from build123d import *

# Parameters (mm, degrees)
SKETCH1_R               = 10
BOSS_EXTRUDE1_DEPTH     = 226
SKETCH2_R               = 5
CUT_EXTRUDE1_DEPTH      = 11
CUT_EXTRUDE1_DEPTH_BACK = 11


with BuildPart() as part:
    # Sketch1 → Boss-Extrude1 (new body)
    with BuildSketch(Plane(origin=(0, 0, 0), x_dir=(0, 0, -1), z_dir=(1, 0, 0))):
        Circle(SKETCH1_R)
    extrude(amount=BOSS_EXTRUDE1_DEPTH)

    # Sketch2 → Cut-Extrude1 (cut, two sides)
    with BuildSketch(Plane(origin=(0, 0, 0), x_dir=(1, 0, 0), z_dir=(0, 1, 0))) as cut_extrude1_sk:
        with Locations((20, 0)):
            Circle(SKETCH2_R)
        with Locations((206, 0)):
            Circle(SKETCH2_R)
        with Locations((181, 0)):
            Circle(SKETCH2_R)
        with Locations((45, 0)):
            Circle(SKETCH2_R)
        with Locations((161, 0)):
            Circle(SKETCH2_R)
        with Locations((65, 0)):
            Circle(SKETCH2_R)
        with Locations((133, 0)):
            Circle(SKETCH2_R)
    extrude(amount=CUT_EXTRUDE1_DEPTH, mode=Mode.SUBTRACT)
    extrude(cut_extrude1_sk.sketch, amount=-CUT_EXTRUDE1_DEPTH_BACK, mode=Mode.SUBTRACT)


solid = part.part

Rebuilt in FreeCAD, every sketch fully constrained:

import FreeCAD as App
import Part
import Sketcher

V = App.Vector

doc = App.newDocument("Part")
params = doc.addObject("Spreadsheet::Sheet", "Params")
for row, (alias, value) in enumerate([
    ("sketch1_diameter", "20 mm"),
    ("pad1_length", "226 mm"),
    ("sketch2_diameter", "10 mm"),
], start=1):
    params.set(f"A{row}", alias)
    params.set(f"B{row}", "=" + value)
    params.setAlias(f"B{row}", alias)

body = doc.addObject("PartDesign::Body", "Body")

sketch1 = body.newObject("Sketcher::SketchObject", "Sketch")
sketch1.AttachmentSupport = (doc.getObject("YZ_Plane"), [""])
sketch1.MapMode = "FlatFace"
sketch1.addGeometry(Part.Circle(V(0, 0, 0), V(0, 0, 1), 10), False)
sketch1.addConstraint([
    Sketcher.Constraint("Coincident", 0, 3, -1, 1),
    Sketcher.Constraint("Diameter", 0, 20.0),
])
sketch1.setExpression("Constraints[1]", "Params.sketch1_diameter")
pad1 = body.newObject("PartDesign::Pad", "Pad")
pad1.Profile = sketch1
pad1.setExpression("Length", "Params.pad1_length")

sketch2 = body.newObject("Sketcher::SketchObject", "Sketch001")
sketch2.AttachmentSupport = (doc.getObject("XZ_Plane"), [""])
sketch2.MapMode = "FlatFace"
sketch2.addGeometry([
    Part.Circle(V(20, 0, 0), V(0, 0, 1), 5),
    Part.Circle(V(206, 0, 0), V(0, 0, 1), 5),
    Part.Circle(V(181, 0, 0), V(0, 0, 1), 5),
    Part.Circle(V(45, 0, 0), V(0, 0, 1), 5),
    Part.Circle(V(161, 0, 0), V(0, 0, 1), 5),
    Part.Circle(V(65, 0, 0), V(0, 0, 1), 5),
    Part.Circle(V(133, 0, 0), V(0, 0, 1), 5),
], False)
sketch2.addConstraint([
    Sketcher.Constraint("Equal", 0, 1),
    Sketcher.Constraint("Equal", 1, 2),
    Sketcher.Constraint("Equal", 2, 3),
    Sketcher.Constraint("Equal", 3, 4),
    Sketcher.Constraint("Equal", 4, 5),
    Sketcher.Constraint("Equal", 5, 6),
    Sketcher.Constraint("PointOnObject", 0, 3, -1),
    Sketcher.Constraint("PointOnObject", 1, 3, -1),
    Sketcher.Constraint("PointOnObject", 2, 3, -1),
    Sketcher.Constraint("PointOnObject", 3, 3, -1),
    Sketcher.Constraint("PointOnObject", 4, 3, -1),
    Sketcher.Constraint("PointOnObject", 5, 3, -1),
    Sketcher.Constraint("PointOnObject", 6, 3, -1),
    Sketcher.Constraint("Diameter", 0, 10.0),
    Sketcher.Constraint("DistanceX", -1, 1, 0, 3, 20.0),
    Sketcher.Constraint("DistanceX", -1, 1, 1, 3, 206.0),
    Sketcher.Constraint("DistanceX", -1, 1, 2, 3, 181.0),
    Sketcher.Constraint("DistanceX", -1, 1, 3, 3, 45.0),
    Sketcher.Constraint("DistanceX", -1, 1, 4, 3, 161.0),
    Sketcher.Constraint("DistanceX", -1, 1, 5, 3, 65.0),
    Sketcher.Constraint("DistanceX", -1, 1, 6, 3, 133.0),
])
sketch2.setExpression("Constraints[13]", "Params.sketch2_diameter")
pocket1 = body.newObject("PartDesign::Pocket", "Pocket")
pocket1.Profile = sketch2
pocket1.Type = "ThroughAll"
pocket1.Midplane = True

doc.recompute()
